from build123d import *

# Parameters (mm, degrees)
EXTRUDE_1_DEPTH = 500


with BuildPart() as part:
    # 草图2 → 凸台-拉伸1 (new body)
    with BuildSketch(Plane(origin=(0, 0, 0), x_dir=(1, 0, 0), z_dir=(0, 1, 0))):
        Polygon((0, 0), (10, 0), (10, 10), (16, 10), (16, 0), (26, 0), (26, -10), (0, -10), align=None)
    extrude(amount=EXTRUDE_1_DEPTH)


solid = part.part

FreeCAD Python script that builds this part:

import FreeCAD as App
import Part
import Sketcher

V = App.Vector

doc = App.newDocument("Part")
body = doc.addObject("PartDesign::Body", "Body")

sketch1 = body.newObject("Sketcher::SketchObject", "Sketch")
sketch1.AttachmentSupport = (doc.getObject("XZ_Plane"), [""])
sketch1.MapMode = "FlatFace"
sketch1.addGeometry(Part.LineSegment(V(10, 0, 0), V(0, 0, 0)), False)
sketch1.addGeometry(Part.LineSegment(V(0, 0, 0), V(0, 10, 0)), False)
sketch1.addGeometry(Part.LineSegment(V(0, 10, 0), V(26, 10, 0)), False)
sketch1.addGeometry(Part.LineSegment(V(26, 10, 0), V(26, 0, 0)), False)
sketch1.addGeometry(Part.LineSegment(V(26, 0, 0), V(16, 0, 0)), False)
sketch1.addGeometry(Part.LineSegment(V(16, 0, 0), V(16, -10, 0)), False)
sketch1.addGeometry(Part.LineSegment(V(16, -10, 0), V(10, -10, 0)), False)
sketch1.addGeometry(Part.LineSegment(V(10, -10, 0), V(10, 0, 0)), False)
sketch1.addConstraint(Sketcher.Constraint("Coincident", 0, 2, 1, 1))
sketch1.addConstraint(Sketcher.Constraint("Coincident", 1, 2, 2, 1))
sketch1.addConstraint(Sketcher.Constraint("Coincident", 2, 2, 3, 1))
sketch1.addConstraint(Sketcher.Constraint("Coincident", 3, 2, 4, 1))
sketch1.addConstraint(Sketcher.Constraint("Coincident", 4, 2, 5, 1))
sketch1.addConstraint(Sketcher.Constraint("Coincident", 5, 2, 6, 1))
sketch1.addConstraint(Sketcher.Constraint("Coincident", 6, 2, 7, 1))
sketch1.addConstraint(Sketcher.Constraint("Coincident", 7, 2, 0, 1))
sketch1.addConstraint(Sketcher.Constraint("Horizontal", 0))
sketch1.addConstraint(Sketcher.Constraint("Vertical", 1))
sketch1.addConstraint(Sketcher.Constraint("Horizontal", 2))
sketch1.addConstraint(Sketcher.Constraint("Vertical", 3))
sketch1.addConstraint(Sketcher.Constraint("Horizontal", 4))
sketch1.addConstraint(Sketcher.Constraint("Vertical", 5))
sketch1.addConstraint(Sketcher.Constraint("Horizontal", 6))
sketch1.addConstraint(Sketcher.Constraint("Vertical", 7))
sketch1.addConstraint(Sketcher.Constraint("Coincident", 0, 2, -1, 1))
sketch1.addConstraint(Sketcher.Constraint("PointOnObject", 3, 2, -1))
sketch1.addConstraint(Sketcher.Constraint("Equal", 0, 4))
sketch1.addConstraint(Sketcher.Constraint("Equal", 4, 1))
sketch1.addConstraint(Sketcher.Constraint("Equal", 3, 5))
sketch1.addConstraint(Sketcher.Constraint("DistanceX", 0, 2, 0, 1, 10.0))
sketch1.addConstraint(Sketcher.Constraint("DistanceX", 2, 1, 2, 2, 26.0))
pad1 = body.newObject("PartDesign::Pad", "Pad")
pad1.Profile = sketch1
pad1.Length = 500
pad1.Reversed = True

doc.recompute()
